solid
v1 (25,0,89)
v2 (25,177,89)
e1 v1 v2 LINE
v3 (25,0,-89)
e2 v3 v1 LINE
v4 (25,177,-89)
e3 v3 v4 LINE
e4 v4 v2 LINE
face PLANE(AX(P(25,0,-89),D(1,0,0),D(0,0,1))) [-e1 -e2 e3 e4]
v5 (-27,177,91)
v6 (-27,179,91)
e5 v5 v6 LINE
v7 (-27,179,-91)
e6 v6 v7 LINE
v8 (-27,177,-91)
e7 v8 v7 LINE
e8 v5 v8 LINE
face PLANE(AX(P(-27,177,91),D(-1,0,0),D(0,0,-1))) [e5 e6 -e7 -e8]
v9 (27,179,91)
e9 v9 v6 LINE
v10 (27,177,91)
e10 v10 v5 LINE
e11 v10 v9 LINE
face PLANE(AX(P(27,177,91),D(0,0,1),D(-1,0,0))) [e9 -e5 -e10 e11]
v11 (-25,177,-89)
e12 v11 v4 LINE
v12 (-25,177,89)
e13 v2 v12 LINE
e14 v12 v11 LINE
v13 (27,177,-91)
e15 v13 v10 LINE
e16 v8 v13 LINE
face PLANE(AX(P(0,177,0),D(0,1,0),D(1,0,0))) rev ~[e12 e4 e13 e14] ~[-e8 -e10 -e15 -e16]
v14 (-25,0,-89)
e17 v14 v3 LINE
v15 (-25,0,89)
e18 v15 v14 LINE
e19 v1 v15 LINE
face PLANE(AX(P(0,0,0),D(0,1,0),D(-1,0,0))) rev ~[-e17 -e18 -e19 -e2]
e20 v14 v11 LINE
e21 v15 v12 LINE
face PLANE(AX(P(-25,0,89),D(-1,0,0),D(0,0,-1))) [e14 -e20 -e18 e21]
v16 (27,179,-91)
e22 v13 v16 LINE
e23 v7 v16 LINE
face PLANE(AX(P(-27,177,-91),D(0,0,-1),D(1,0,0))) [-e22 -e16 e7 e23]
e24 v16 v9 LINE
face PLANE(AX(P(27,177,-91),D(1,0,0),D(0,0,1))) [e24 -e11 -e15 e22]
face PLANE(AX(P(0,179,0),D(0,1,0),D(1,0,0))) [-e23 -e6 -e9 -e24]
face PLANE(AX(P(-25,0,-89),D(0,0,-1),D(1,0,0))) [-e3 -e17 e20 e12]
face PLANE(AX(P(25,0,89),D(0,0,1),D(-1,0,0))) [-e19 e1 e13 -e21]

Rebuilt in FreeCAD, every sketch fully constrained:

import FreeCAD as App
import Part
import Sketcher
from FreeCAD import Vector
Q = App.Units.Quantity


def add_polygon(sketch, points):
    """Adds a closed chain of lines whose ends are joined by coincident constraints."""
    first, n = sketch.GeometryCount, len(points)
    for a, b in zip(points, points[1:] + points[:1]):
        sketch.addGeometry(Part.LineSegment(App.Vector(*a, 0), App.Vector(*b, 0)), False)
    for i in range(n):
        sketch.addConstraint(Sketcher.Constraint("Coincident", first + i, 2, first + (i + 1) % n, 1))

doc = App.newDocument("Part")
body = doc.addObject("PartDesign::Body", "Body")

sketch1 = body.newObject("Sketcher::SketchObject", "Sketch")
sketch1.AttachmentSupport = (doc.getObject("XZ_Plane"), [""])
sketch1.MapMode = "FlatFace"
add_polygon(sketch1, [(-25, 89), (25, 89), (25, -89), (-25, -89)])
sketch1.addConstraint(Sketcher.Constraint("Horizontal", 0))
sketch1.addConstraint(Sketcher.Constraint("Vertical", 1))
sketch1.addConstraint(Sketcher.Constraint("Horizontal", 2))
sketch1.addConstraint(Sketcher.Constraint("Vertical", 3))
sketch1.addConstraint(Sketcher.Constraint("Symmetric", 0, 2, 2, 2, -1, 1))
sketch1.addConstraint(Sketcher.Constraint("DistanceX", 0, 1, 0, 2, Q("50 mm")))
sketch1.addConstraint(Sketcher.Constraint("DistanceY", 1, 2, 1, 1, Q("178 mm")))
pad1 = body.newObject("PartDesign::Pad", "Pad")
pad1.Profile = sketch1
pad1.Length = 177
pad1.Reversed = True

sketch2 = body.newObject("Sketcher::SketchObject", "Sketch001")
sketch2.AttachmentSupport = (doc.getObject("XZ_Plane"), [""])
sketch2.MapMode = "FlatFace"
sketch2.AttachmentOffset = App.Placement(Vector(0, 0, -177), App.Rotation())
add_polygon(sketch2, [(-27, 91), (27, 91), (27, -91), (-27, -91)])
sketch2.addConstraint(Sketcher.Constraint("Horizontal", 0))
sketch2.addConstraint(Sketcher.Constraint("Vertical", 1))
sketch2.addConstraint(Sketcher.Constraint("Horizontal", 2))
sketch2.addConstraint(Sketcher.Constraint("Vertical", 3))
sketch2.addConstraint(Sketcher.Constraint("Symmetric", 0, 2, 2, 2, -1, 1))
sketch2.addConstraint(Sketcher.Constraint("DistanceX", 0, 1, 0, 2, Q("54 mm")))
sketch2.addConstraint(Sketcher.Constraint("DistanceY", 1, 2, 1, 1, Q("182 mm")))
pad2 = body.newObject("PartDesign::Pad", "Pad001")
pad2.Profile = sketch2
pad2.Length = 2
pad2.Reversed = True

doc.recompute()
